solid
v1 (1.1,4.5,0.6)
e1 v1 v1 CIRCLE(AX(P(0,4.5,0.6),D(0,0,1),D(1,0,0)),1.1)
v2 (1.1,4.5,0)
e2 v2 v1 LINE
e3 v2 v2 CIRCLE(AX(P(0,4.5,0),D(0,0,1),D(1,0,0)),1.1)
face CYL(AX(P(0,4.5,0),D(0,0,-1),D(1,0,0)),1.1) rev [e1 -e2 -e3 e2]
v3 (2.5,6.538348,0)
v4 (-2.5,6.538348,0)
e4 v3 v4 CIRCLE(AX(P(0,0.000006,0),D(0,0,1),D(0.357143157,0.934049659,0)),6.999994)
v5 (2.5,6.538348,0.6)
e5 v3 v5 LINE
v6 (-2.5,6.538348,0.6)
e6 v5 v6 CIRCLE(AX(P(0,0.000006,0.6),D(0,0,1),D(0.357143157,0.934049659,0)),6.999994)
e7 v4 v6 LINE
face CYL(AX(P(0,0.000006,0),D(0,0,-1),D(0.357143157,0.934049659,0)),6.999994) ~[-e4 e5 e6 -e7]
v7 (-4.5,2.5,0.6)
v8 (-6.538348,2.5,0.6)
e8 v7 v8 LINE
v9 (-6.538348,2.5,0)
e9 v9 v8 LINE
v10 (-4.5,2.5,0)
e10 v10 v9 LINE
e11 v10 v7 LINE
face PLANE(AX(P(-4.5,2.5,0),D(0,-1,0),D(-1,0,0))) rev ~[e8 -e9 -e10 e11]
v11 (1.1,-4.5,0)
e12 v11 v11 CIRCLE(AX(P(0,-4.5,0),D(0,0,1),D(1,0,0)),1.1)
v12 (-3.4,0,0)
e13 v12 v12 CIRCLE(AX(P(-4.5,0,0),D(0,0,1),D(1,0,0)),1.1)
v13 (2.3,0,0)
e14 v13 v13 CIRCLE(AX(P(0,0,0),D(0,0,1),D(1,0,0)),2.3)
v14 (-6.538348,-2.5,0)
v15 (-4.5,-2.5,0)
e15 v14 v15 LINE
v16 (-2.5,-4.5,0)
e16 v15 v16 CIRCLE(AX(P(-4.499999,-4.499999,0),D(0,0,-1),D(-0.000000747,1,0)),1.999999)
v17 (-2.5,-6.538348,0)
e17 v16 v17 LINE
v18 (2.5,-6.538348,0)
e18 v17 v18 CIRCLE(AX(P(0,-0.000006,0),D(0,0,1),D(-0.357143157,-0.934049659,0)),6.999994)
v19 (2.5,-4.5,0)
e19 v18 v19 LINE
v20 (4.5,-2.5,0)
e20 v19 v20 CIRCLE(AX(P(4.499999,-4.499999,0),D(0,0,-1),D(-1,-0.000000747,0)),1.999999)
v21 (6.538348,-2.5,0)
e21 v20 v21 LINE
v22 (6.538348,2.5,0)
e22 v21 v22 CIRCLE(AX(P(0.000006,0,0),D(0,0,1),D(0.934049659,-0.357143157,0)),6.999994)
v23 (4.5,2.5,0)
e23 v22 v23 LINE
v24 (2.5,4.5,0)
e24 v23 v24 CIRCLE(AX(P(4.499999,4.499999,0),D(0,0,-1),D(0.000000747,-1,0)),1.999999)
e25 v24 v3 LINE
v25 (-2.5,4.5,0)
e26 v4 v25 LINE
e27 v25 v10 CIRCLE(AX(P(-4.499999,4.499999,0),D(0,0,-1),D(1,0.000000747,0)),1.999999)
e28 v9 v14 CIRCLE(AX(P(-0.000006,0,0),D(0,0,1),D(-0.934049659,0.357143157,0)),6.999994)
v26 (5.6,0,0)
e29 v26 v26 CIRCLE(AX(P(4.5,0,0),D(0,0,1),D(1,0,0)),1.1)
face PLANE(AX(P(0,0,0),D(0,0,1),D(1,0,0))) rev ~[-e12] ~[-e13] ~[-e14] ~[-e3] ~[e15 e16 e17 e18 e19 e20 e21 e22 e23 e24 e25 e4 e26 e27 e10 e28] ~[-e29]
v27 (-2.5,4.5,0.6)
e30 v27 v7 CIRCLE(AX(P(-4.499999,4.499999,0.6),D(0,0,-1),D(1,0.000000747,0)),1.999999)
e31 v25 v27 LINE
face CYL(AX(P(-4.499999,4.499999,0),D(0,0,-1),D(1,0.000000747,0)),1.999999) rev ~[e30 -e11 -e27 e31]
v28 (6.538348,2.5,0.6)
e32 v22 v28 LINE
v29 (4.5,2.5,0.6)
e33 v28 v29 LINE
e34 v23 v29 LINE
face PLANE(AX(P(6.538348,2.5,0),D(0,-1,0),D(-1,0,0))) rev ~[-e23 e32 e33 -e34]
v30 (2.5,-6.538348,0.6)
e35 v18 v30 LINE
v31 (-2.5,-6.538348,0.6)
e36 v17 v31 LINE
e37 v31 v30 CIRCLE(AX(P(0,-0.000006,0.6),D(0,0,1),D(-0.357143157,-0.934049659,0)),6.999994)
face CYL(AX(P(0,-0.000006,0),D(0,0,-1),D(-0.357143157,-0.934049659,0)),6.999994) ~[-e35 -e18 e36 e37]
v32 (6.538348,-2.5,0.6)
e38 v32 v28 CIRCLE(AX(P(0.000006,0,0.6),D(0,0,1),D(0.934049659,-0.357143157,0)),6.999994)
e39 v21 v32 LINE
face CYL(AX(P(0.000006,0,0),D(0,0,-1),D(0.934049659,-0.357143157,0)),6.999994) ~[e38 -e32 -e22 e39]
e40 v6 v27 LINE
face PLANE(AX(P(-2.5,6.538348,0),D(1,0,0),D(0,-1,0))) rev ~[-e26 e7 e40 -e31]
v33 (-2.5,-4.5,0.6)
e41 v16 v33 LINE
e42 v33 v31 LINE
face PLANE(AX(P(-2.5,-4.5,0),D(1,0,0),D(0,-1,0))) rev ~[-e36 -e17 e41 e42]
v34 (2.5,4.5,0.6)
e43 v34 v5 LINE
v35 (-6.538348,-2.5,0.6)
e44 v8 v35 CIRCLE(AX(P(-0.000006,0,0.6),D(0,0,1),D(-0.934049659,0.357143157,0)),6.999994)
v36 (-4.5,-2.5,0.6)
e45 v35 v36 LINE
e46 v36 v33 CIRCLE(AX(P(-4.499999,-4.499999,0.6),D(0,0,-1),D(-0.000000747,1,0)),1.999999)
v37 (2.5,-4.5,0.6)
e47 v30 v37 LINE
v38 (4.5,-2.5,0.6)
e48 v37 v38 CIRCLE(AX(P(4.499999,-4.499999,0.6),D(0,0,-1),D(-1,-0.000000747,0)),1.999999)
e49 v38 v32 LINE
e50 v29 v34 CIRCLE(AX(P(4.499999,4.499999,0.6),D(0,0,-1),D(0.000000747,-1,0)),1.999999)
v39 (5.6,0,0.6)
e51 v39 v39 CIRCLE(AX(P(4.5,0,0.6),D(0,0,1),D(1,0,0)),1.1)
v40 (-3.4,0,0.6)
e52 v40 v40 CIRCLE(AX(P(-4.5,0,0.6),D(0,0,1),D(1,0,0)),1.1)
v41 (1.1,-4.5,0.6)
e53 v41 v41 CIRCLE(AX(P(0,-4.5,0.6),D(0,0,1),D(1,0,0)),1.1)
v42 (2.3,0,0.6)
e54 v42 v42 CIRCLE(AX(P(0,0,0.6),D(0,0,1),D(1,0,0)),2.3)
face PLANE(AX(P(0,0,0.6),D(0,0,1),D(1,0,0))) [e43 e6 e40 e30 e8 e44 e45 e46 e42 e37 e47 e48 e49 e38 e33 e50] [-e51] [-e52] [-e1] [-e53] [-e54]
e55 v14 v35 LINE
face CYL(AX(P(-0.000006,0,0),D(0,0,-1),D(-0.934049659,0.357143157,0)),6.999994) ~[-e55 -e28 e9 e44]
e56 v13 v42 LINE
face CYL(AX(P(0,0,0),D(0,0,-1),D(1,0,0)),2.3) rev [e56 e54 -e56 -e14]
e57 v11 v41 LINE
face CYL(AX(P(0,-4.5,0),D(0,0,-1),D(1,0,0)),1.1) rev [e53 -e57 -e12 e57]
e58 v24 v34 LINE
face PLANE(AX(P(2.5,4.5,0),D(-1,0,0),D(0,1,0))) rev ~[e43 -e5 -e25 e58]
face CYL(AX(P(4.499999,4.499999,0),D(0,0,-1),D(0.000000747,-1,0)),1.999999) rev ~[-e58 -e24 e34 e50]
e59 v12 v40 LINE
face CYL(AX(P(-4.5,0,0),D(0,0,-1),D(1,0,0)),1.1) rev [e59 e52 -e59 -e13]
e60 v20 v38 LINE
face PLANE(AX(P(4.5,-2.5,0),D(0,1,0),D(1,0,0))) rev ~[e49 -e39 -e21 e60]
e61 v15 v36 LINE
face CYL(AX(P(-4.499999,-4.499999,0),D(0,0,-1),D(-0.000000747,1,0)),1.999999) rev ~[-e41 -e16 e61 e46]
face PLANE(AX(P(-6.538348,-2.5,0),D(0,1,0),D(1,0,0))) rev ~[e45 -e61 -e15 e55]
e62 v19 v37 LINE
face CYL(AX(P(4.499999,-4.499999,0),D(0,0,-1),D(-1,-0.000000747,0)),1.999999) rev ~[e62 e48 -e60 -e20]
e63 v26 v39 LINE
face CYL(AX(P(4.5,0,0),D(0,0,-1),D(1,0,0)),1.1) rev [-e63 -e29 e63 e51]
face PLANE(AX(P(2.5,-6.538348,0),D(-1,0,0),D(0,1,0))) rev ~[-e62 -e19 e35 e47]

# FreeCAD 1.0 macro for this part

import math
import FreeCAD as App
import Part
import Sketcher
from FreeCAD import Vector

doc = App.newDocument("Part")
params = doc.addObject("Spreadsheet::Sheet", "Params")
for row, (alias, value) in enumerate([
    ("sketch1_radius", "1.999999 mm"),
    ("sketch1_diameter", "2.2 mm"),
    ("sketch1_diameter2", "4.6 mm"),
    ("pad1_length", "0.6 mm"),
], start=1):
    params.set(f"A{row}", alias)
    params.set(f"B{row}", "=" + value)
    params.setAlias(f"B{row}", alias)

body = doc.addObject("PartDesign::Body", "Body")

# Sketch on XY plane
sketch1 = body.newObject("Sketcher::SketchObject", "Sketch")
sketch1.AttachmentSupport = (doc.getObject("XY_Plane"), [""])
sketch1.MapMode = "FlatFace"
sketch1.addGeometry([
    Part.LineSegment(Vector(2.5, 4.5, 0), Vector(2.5, 6.5, 0)),  # 0
    Part.ArcOfCircle(Part.Circle(Vector(0, 0, 0), Vector(0, 0, 1), 7), math.radians(69), math.radians(111)),  # 1
    Part.LineSegment(Vector(-2.5, 6.5, 0), Vector(-2.5, 4.5, 0)),  # 2
    Part.ArcOfCircle(Part.Circle(Vector(-4.5, 4.5, 0), Vector(0, 0, 1), 2), math.radians(-90), math.radians(0)),  # 3
    Part.LineSegment(Vector(-4.5, 2.5, 0), Vector(-6.5, 2.5, 0)),  # 4
    Part.ArcOfCircle(Part.Circle(Vector(0, 0, 0), Vector(0, 0, 1), 7), math.radians(159), math.radians(201)),  # 5
    Part.LineSegment(Vector(-6.5, -2.5, 0), Vector(-4.5, -2.5, 0)),  # 6
    Part.ArcOfCircle(Part.Circle(Vector(-4.5, -4.5, 0), Vector(0, 0, 1), 2), math.radians(0), math.radians(90)),  # 7
    Part.LineSegment(Vector(-2.5, -4.5, 0), Vector(-2.5, -6.5, 0)),  # 8
    Part.ArcOfCircle(Part.Circle(Vector(0, 0, 0), Vector(0, 0, 1), 7), math.radians(-111), math.radians(-69)),  # 9
    Part.LineSegment(Vector(2.5, -6.5, 0), Vector(2.5, -4.5, 0)),  # 10
    Part.ArcOfCircle(Part.Circle(Vector(4.5, -4.5, 0), Vector(0, 0, 1), 2), math.radians(90), math.radians(180)),  # 11
    Part.LineSegment(Vector(4.5, -2.5, 0), Vector(6.5, -2.5, 0)),  # 12
    Part.ArcOfCircle(Part.Circle(Vector(0, 0, 0), Vector(0, 0, 1), 7), math.radians(-21), math.radians(21)),  # 13
    Part.LineSegment(Vector(6.5, 2.5, 0), Vector(4.5, 2.5, 0)),  # 14
    Part.ArcOfCircle(Part.Circle(Vector(4.5, 4.5, 0), Vector(0, 0, 1), 2), math.radians(180), math.radians(270)),  # 15
    Part.Circle(Vector(0, -4.5, 0), Vector(0, 0, 1), 1.1),  # 16
    Part.Circle(Vector(-4.5, 0, 0), Vector(0, 0, 1), 1.1),  # 17
    Part.Circle(Vector(0, 0, 0), Vector(0, 0, 1), 2.3),  # 18
    Part.Circle(Vector(4.5, 0, 0), Vector(0, 0, 1), 1.1),  # 19
    Part.Circle(Vector(0, 4.5, 0), Vector(0, 0, 1), 1.1),  # 20
], False)
sketch1.addConstraint([
    Sketcher.Constraint("Coincident", 0, 2, 1, 1),
    Sketcher.Constraint("Coincident", 1, 2, 2, 1),
    Sketcher.Constraint("Tangent", 2, 2, 3, 2),
    Sketcher.Constraint("Tangent", 3, 1, 4, 1),
    Sketcher.Constraint("Coincident", 4, 2, 5, 1),
    Sketcher.Constraint("Coincident", 5, 2, 6, 1),
    Sketcher.Constraint("Tangent", 6, 2, 7, 2),
    Sketcher.Constraint("Tangent", 7, 1, 8, 1),
    Sketcher.Constraint("Coincident", 8, 2, 9, 1),
    Sketcher.Constraint("Coincident", 9, 2, 10, 1),
    Sketcher.Constraint("Tangent", 10, 2, 11, 2),
    Sketcher.Constraint("Tangent", 11, 1, 12, 1),
    Sketcher.Constraint("Coincident", 12, 2, 13, 1),
    Sketcher.Constraint("Coincident", 13, 2, 14, 1),
    Sketcher.Constraint("Tangent", 14, 2, 15, 2),
    Sketcher.Constraint("Tangent", 15, 1, 0, 1),
    Sketcher.Constraint("Vertical", 0),
    Sketcher.Constraint("Vertical", 2),
    Sketcher.Constraint("Horizontal", 4),
    Sketcher.Constraint("Horizontal", 6),
    Sketcher.Constraint("Vertical", 8),
    Sketcher.Constraint("Vertical", 10),
    Sketcher.Constraint("Horizontal", 12),
    Sketcher.Constraint("Horizontal", 14),
    Sketcher.Constraint("Coincident", 1, 3, -1, 1),
    Sketcher.Constraint("Coincident", 5, 3, -1, 1),
    Sketcher.Constraint("Coincident", 9, 3, -1, 1),
    Sketcher.Constraint("Coincident", 13, 3, -1, 1),
    Sketcher.Constraint("Coincident", 18, 3, -1, 1),
    Sketcher.Constraint("Equal", 1, 5),
    Sketcher.Constraint("Equal", 3, 7),
    Sketcher.Constraint("Equal", 5, 9),
    Sketcher.Constraint("Equal", 7, 11),
    Sketcher.Constraint("Equal", 9, 13),
    Sketcher.Constraint("Equal", 11, 15),
    Sketcher.Constraint("Equal", 16, 17),
    Sketcher.Constraint("Equal", 17, 19),
    Sketcher.Constraint("Equal", 19, 20),
    Sketcher.Constraint("Symmetric", 3, 3, 11, 3, -1, 1),
    Sketcher.Constraint("Symmetric", 7, 3, 15, 3, -1, 1),
    Sketcher.Constraint("Symmetric", 17, 3, 19, 3, -1, 1),
    Sketcher.Constraint("Symmetric", 16, 3, 20, 3, -1, 1),
    Sketcher.Constraint("Symmetric", 7, 3, 11, 3, -2),
    Sketcher.Constraint("PointOnObject", 16, 3, -2),
    Sketcher.Constraint("PointOnObject", 17, 3, -1),
    Sketcher.Constraint("Horizontal", 11, 3, 16, 3),
    Sketcher.Constraint("Vertical", 7, 3, 17, 3),
    Sketcher.Constraint("Equal", 14, 0),
    Sketcher.Constraint("Radius", 3, 1.999999),
    Sketcher.Constraint("Diameter", 16, 2.2),
    Sketcher.Constraint("Diameter", 18, 4.6),
    Sketcher.Constraint("DistanceX", 1, 2, 0, 2, 5.0),
    Sketcher.Constraint("Radius", 1, 6.999994),
])
sketch1.setExpression("Constraints[48]", "Params.sketch1_radius")
sketch1.setExpression("Constraints[49]", "Params.sketch1_diameter")
sketch1.setExpression("Constraints[50]", "Params.sketch1_diameter2")
pad1 = body.newObject("PartDesign::Pad", "Pad")
pad1.Profile = sketch1
pad1.setExpression("Length", "Params.pad1_length")

doc.recompute()
